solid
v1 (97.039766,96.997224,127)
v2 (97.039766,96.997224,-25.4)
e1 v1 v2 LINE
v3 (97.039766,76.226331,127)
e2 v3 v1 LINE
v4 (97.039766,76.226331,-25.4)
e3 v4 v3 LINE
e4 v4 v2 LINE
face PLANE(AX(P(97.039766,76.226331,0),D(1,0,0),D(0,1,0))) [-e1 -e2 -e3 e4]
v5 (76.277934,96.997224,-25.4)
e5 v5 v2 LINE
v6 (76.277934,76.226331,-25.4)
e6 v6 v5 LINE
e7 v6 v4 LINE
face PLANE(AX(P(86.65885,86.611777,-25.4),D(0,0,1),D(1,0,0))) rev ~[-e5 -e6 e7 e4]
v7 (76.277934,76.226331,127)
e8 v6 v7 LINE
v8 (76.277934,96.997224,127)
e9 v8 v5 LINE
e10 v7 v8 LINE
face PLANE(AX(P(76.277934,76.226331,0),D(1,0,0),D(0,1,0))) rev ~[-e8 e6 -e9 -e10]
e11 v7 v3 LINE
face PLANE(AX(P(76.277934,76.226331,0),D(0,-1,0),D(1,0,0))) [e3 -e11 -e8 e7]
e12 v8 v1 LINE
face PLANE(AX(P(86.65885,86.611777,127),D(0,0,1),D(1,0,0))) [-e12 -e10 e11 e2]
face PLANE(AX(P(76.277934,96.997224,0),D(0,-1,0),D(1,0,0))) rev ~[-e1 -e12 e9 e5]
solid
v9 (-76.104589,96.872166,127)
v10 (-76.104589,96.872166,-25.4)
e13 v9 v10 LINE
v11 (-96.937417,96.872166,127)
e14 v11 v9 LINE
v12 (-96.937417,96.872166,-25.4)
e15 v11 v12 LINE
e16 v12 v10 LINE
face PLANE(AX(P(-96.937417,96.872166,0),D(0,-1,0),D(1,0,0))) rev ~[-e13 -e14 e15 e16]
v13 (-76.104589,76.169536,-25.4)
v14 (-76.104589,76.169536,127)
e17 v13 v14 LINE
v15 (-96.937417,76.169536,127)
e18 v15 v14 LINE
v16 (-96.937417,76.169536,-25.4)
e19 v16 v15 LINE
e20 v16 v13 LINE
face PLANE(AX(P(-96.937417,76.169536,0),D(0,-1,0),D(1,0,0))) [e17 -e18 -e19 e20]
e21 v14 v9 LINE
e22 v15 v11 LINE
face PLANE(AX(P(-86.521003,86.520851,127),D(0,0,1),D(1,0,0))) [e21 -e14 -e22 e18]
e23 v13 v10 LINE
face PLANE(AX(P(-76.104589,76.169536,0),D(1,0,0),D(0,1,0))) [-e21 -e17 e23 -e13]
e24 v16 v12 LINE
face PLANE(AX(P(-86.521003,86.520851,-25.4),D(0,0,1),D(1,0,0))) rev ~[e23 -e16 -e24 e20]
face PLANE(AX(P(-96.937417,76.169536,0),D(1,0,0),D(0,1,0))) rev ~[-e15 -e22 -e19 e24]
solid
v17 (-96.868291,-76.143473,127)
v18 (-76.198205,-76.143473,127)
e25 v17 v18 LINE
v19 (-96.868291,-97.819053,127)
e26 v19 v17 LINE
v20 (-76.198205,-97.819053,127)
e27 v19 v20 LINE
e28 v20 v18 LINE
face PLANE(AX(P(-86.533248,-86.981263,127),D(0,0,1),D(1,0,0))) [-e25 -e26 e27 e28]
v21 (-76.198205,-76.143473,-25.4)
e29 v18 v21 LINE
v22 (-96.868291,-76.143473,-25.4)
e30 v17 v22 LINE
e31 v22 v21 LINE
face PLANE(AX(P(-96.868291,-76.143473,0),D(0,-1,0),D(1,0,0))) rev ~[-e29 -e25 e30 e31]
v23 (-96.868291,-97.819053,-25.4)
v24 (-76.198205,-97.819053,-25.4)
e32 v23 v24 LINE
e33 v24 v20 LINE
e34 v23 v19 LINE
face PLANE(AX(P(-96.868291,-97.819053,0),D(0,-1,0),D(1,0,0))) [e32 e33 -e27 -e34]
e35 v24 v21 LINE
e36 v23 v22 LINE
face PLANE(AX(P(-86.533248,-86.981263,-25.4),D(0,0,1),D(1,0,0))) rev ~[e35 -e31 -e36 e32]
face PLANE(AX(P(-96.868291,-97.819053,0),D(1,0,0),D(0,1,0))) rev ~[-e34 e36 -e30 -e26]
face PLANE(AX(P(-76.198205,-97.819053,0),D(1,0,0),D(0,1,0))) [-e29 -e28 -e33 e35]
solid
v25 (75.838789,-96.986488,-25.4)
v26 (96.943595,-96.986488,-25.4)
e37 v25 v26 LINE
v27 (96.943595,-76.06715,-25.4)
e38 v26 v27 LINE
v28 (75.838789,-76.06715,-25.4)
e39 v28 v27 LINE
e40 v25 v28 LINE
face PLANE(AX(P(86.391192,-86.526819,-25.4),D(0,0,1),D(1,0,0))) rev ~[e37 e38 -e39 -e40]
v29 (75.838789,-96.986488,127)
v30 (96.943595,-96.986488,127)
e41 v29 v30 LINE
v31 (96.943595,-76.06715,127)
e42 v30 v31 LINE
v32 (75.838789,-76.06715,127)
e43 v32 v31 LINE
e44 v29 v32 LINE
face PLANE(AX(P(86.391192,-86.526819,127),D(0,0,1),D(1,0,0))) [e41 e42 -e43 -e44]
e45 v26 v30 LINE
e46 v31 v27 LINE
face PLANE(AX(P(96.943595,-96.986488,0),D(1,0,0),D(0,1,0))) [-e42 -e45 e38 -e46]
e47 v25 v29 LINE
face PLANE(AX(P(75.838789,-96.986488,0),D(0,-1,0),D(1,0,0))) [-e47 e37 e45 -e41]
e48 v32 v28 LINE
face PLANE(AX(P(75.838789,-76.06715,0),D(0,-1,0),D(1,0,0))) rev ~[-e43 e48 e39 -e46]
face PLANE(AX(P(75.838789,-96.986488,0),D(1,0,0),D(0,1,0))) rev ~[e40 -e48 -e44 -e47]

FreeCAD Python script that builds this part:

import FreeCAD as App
import Part
import Sketcher

V = App.Vector
Q = App.Units.Quantity

doc = App.newDocument("Part")
body = doc.addObject("PartDesign::Body", "Body")
body.AllowCompound = True

sketch1 = body.newObject("Sketcher::SketchObject", "Sketch")
sketch1.AttachmentSupport = (doc.getObject("XY_Plane"), [""])
sketch1.MapMode = "FlatFace"
sketch1.addGeometry(Part.LineSegment(V(-96.937417, 96.872166, 0), V(-96.937417, 76.169536, 0)), False)
sketch1.addGeometry(Part.LineSegment(V(-96.937417, 76.169536, 0), V(-76.104589, 76.169536, 0)), False)
sketch1.addGeometry(Part.LineSegment(V(-76.104589, 76.169536, 0), V(-76.104589, 96.872166, 0)), False)
sketch1.addGeometry(Part.LineSegment(V(-76.104589, 96.872166, 0), V(-96.937417, 96.872166, 0)), False)
sketch1.addGeometry(Part.LineSegment(V(75.838789, -76.06715, 0), V(75.838789, -96.986488, 0)), False)
sketch1.addGeometry(Part.LineSegment(V(75.838789, -96.986488, 0), V(96.943595, -96.986488, 0)), False)
sketch1.addGeometry(Part.LineSegment(V(96.943595, -96.986488, 0), V(96.943595, -76.06715, 0)), False)
sketch1.addGeometry(Part.LineSegment(V(96.943595, -76.06715, 0), V(75.838789, -76.06715, 0)), False)
sketch1.addGeometry(Part.LineSegment(V(-96.868291, -76.143473, 0), V(-96.868291, -97.819053, 0)), False)
sketch1.addGeometry(Part.LineSegment(V(-96.868291, -97.819053, 0), V(-76.198205, -97.819053, 0)), False)
sketch1.addGeometry(Part.LineSegment(V(-76.198205, -97.819053, 0), V(-76.198205, -76.143473, 0)), False)
sketch1.addGeometry(Part.LineSegment(V(-76.198205, -76.143473, 0), V(-96.868291, -76.143473, 0)), False)
sketch1.addGeometry(Part.LineSegment(V(76.277934, 96.997224, 0), V(76.277934, 76.226331, 0)), False)
sketch1.addGeometry(Part.LineSegment(V(76.277934, 76.226331, 0), V(97.039766, 76.226331, 0)), False)
sketch1.addGeometry(Part.LineSegment(V(97.039766, 76.226331, 0), V(97.039766, 96.997224, 0)), False)
sketch1.addGeometry(Part.LineSegment(V(97.039766, 96.997224, 0), V(76.277934, 96.997224, 0)), False)
sketch1.addConstraint(Sketcher.Constraint("Coincident", 0, 2, 1, 1))
sketch1.addConstraint(Sketcher.Constraint("Coincident", 1, 2, 2, 1))
sketch1.addConstraint(Sketcher.Constraint("Coincident", 2, 2, 3, 1))
sketch1.addConstraint(Sketcher.Constraint("Coincident", 3, 2, 0, 1))
sketch1.addConstraint(Sketcher.Constraint("Coincident", 4, 2, 5, 1))
sketch1.addConstraint(Sketcher.Constraint("Coincident", 5, 2, 6, 1))
sketch1.addConstraint(Sketcher.Constraint("Coincident", 6, 2, 7, 1))
sketch1.addConstraint(Sketcher.Constraint("Coincident", 7, 2, 4, 1))
sketch1.addConstraint(Sketcher.Constraint("Coincident", 8, 2, 9, 1))
sketch1.addConstraint(Sketcher.Constraint("Coincident", 9, 2, 10, 1))
sketch1.addConstraint(Sketcher.Constraint("Coincident", 10, 2, 11, 1))
sketch1.addConstraint(Sketcher.Constraint("Coincident", 11, 2, 8, 1))
sketch1.addConstraint(Sketcher.Constraint("Coincident", 12, 2, 13, 1))
sketch1.addConstraint(Sketcher.Constraint("Coincident", 13, 2, 14, 1))
sketch1.addConstraint(Sketcher.Constraint("Coincident", 14, 2, 15, 1))
sketch1.addConstraint(Sketcher.Constraint("Coincident", 15, 2, 12, 1))
sketch1.addConstraint(Sketcher.Constraint("Vertical", 0))
sketch1.addConstraint(Sketcher.Constraint("Horizontal", 1))
sketch1.addConstraint(Sketcher.Constraint("Vertical", 2))
sketch1.addConstraint(Sketcher.Constraint("Horizontal", 3))
sketch1.addConstraint(Sketcher.Constraint("Vertical", 4))
sketch1.addConstraint(Sketcher.Constraint("Horizontal", 5))
sketch1.addConstraint(Sketcher.Constraint("Vertical", 6))
sketch1.addConstraint(Sketcher.Constraint("Horizontal", 7))
sketch1.addConstraint(Sketcher.Constraint("Vertical", 8))
sketch1.addConstraint(Sketcher.Constraint("Horizontal", 9))
sketch1.addConstraint(Sketcher.Constraint("Vertical", 10))
sketch1.addConstraint(Sketcher.Constraint("Horizontal", 11))
sketch1.addConstraint(Sketcher.Constraint("Vertical", 12))
sketch1.addConstraint(Sketcher.Constraint("Horizontal", 13))
sketch1.addConstraint(Sketcher.Constraint("Vertical", 14))
sketch1.addConstraint(Sketcher.Constraint("Horizontal", 15))
sketch1.addConstraint(Sketcher.Constraint("DistanceX", 1, 1, 1, 2, 20.832829))
sketch1.addConstraint(Sketcher.Constraint("DistanceY", 0, 2, 0, 1, 20.70263))
sketch1.addConstraint(Sketcher.Constraint("DistanceY", 8, 2, 8, 1, 21.67558))
sketch1.addConstraint(Sketcher.Constraint("DistanceX", 9, 2, 5, 2, 173.1418))
sketch1.addConstraint(Sketcher.Constraint("DistanceX", 5, 1, 5, 2, 21.104806))
sketch1.addConstraint(Sketcher.Constraint("DistanceX", 9, 1, 9, 2, 20.670086))
sketch1.addConstraint(Sketcher.Constraint("DistanceX", 13, 1, 13, 2, 20.761833))
sketch1.addConstraint(Sketcher.Constraint("DistanceY", 4, 2, 4, 1, 20.919338))
sketch1.addConstraint(Sketcher.Constraint("DistanceY", 12, 2, 12, 1, 20.770893))
sketch1.addConstraint(Sketcher.Constraint("DistanceX", 1, 2, -1, 1, 76.104589))
sketch1.addConstraint(Sketcher.Constraint("DistanceX", -1, 1, 4, 2, 75.838789))
sketch1.addConstraint(Sketcher.Constraint("DistanceY", 6, 2, -1, 1, 76.06715))
sketch1.addConstraint(Sketcher.Constraint("DistanceY", -1, 1, 12, 2, 76.226331))
sketch1.addConstraint(Sketcher.Constraint("DistanceY", 8, 2, 0, 2, 173.988589))
sketch1.addConstraint(Sketcher.Constraint("DistanceX", 1, 2, 12, 2, 152.382522))
sketch1.addConstraint(Sketcher.Constraint("DistanceY", -1, 1, 0, 2, 76.169536))
pad1 = body.newObject("PartDesign::Pad", "Pad")
pad1.Profile = sketch1
pad1.Type = "TwoLengths"
pad1.Length = Q("5 in")
pad1.Length2 = Q("1 in")

doc.recompute()
